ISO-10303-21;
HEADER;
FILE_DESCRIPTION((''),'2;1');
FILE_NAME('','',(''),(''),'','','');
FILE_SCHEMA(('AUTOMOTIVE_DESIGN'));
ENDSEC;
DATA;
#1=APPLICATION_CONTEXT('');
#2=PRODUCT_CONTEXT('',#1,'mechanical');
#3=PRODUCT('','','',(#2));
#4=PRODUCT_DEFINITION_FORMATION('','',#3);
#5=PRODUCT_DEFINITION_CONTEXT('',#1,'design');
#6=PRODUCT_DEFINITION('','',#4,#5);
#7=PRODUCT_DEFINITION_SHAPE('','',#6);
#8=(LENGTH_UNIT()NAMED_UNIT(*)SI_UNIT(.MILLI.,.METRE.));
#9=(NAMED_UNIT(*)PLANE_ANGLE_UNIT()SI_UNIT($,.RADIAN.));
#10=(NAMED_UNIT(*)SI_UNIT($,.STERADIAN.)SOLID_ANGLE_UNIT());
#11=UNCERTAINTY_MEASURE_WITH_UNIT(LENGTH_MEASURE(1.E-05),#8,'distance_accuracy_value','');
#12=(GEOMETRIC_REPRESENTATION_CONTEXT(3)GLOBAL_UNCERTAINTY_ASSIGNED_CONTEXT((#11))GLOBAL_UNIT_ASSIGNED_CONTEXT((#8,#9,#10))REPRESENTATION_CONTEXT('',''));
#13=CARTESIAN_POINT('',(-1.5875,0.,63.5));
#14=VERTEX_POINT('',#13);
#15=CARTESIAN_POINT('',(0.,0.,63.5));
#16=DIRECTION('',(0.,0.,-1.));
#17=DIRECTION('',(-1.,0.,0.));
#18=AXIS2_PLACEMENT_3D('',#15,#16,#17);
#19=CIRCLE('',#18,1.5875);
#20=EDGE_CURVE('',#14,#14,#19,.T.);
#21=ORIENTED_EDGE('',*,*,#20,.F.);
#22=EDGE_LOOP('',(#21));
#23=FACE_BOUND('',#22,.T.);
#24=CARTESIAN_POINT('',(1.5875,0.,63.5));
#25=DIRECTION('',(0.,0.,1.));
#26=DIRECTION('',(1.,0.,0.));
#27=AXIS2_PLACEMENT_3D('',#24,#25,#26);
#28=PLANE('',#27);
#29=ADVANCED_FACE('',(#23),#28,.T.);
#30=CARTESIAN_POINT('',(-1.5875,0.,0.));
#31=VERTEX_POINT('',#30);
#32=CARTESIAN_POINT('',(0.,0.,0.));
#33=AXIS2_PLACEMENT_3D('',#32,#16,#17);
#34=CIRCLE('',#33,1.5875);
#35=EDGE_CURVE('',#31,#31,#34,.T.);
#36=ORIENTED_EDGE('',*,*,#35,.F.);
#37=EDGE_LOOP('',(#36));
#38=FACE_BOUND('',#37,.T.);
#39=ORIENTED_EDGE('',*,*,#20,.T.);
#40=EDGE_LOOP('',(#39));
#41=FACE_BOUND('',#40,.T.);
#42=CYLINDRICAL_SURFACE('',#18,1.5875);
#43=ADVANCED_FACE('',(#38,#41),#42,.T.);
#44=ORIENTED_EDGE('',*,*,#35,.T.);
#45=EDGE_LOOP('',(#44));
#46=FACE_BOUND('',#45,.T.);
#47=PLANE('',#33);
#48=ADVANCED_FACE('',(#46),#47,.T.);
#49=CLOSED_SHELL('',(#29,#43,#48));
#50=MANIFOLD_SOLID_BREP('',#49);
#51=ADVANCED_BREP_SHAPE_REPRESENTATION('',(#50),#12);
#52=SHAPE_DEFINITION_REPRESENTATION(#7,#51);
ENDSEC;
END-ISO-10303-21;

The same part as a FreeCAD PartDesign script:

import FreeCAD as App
import Part
import Sketcher
from FreeCAD import Vector
Q = App.Units.Quantity

doc = App.newDocument("Part")
body = doc.addObject("PartDesign::Body", "Body")

sketch1 = body.newObject("Sketcher::SketchObject", "Sketch")
sketch1.AttachmentSupport = (doc.getObject("XZ_Plane"), [""])
sketch1.MapMode = "FlatFace"
sketch1.addGeometry([
    Part.LineSegment(Vector(0, 63.5, 0), Vector(0, 0, 0)),
    Part.LineSegment(Vector(0, 0, 0), Vector(1.6, 0, 0)),
    Part.LineSegment(Vector(1.6, 0, 0), Vector(1.6, 63.5, 0)),
    Part.LineSegment(Vector(1.6, 63.5, 0), Vector(0, 63.5, 0)),
], False)
sketch1.addConstraint([
    Sketcher.Constraint("Coincident", 0, 2, 1, 1),
    Sketcher.Constraint("Coincident", 1, 2, 2, 1),
    Sketcher.Constraint("Coincident", 2, 2, 3, 1),
    Sketcher.Constraint("Coincident", 3, 2, 0, 1),
    Sketcher.Constraint("Vertical", 0),
    Sketcher.Constraint("Horizontal", 1),
    Sketcher.Constraint("Vertical", 2),
    Sketcher.Constraint("Horizontal", 3),
    Sketcher.Constraint("Coincident", 0, 2, -1, 1),
    Sketcher.Constraint("DistanceY", 0, 2, 0, 1, Q("2.5 in")),
    Sketcher.Constraint("DistanceX", 1, 1, 1, 2, Q("0.0625 in")),
])
revolution = body.newObject("PartDesign::Revolution", "Revolution")
revolution.Profile = sketch1
revolution.ReferenceAxis = (sketch1, ["V_Axis"])
revolution.Angle = 360

doc.recompute()
